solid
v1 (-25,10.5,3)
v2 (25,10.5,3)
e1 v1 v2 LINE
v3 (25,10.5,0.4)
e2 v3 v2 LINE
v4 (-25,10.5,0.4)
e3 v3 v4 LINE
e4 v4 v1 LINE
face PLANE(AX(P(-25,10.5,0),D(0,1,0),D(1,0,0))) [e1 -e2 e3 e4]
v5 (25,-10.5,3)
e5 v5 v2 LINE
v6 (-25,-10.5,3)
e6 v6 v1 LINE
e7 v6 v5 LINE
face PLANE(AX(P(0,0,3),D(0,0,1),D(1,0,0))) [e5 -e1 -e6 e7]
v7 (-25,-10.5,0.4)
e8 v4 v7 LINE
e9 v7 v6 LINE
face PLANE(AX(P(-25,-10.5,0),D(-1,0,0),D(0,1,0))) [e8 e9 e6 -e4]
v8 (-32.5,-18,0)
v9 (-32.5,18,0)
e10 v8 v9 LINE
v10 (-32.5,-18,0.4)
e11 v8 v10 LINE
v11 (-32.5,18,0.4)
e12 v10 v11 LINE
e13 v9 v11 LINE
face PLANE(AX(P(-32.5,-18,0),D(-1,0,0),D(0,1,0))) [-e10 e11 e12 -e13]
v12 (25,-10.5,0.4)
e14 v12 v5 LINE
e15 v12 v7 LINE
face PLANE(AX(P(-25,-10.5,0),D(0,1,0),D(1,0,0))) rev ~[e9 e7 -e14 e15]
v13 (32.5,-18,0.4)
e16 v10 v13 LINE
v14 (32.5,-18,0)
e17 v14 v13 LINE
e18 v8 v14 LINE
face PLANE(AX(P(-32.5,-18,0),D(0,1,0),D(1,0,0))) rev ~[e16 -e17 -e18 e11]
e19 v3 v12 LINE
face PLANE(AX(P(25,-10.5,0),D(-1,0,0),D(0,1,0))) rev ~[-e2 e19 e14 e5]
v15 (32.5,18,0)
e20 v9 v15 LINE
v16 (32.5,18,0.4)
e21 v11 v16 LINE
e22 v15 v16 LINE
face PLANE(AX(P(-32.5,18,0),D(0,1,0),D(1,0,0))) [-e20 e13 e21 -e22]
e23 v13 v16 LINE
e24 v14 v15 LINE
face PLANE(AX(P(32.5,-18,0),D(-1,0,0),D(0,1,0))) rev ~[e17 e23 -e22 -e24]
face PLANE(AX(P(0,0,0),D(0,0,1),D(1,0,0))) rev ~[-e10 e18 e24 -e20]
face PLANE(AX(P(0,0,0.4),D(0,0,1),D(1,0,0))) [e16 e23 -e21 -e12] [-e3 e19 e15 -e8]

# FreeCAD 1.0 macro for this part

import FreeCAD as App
import Part
import Sketcher

doc = App.newDocument("Part")
params = doc.addObject("Spreadsheet::Sheet", "Params")
for row, (alias, value) in enumerate([
    ("sketch1_width", "65 mm"),
    ("sketch1_height", "36 mm"),
    ("pad1_length", "0.4 mm"),
    ("sketch2_width", "50 mm"),
    ("sketch2_height", "21 mm"),
    ("pad2_length", "3 mm"),
], start=1):
    params.set(f"A{row}", alias)
    params.set(f"B{row}", "=" + value)
    params.setAlias(f"B{row}", alias)

body = doc.addObject("PartDesign::Body", "Body")

# Sketch on XY plane
sketch1 = body.newObject("Sketcher::SketchObject", "Sketch")
sketch1.AttachmentSupport = (doc.getObject("XY_Plane"), [""])
sketch1.MapMode = "FlatFace"
sketch1.addGeometry(Part.LineSegment(App.Vector(-32, 18, 0), App.Vector(-32, -18, 0)), False)
sketch1.addGeometry(Part.LineSegment(App.Vector(-32, -18, 0), App.Vector(32, -18, 0)), False)
sketch1.addGeometry(Part.LineSegment(App.Vector(32, -18, 0), App.Vector(32, 18, 0)), False)
sketch1.addGeometry(Part.LineSegment(App.Vector(32, 18, 0), App.Vector(-32, 18, 0)), False)
sketch1.addConstraint(Sketcher.Constraint("Coincident", 0, 2, 1, 1))
sketch1.addConstraint(Sketcher.Constraint("Coincident", 1, 2, 2, 1))
sketch1.addConstraint(Sketcher.Constraint("Coincident", 2, 2, 3, 1))
sketch1.addConstraint(Sketcher.Constraint("Coincident", 3, 2, 0, 1))
sketch1.addConstraint(Sketcher.Constraint("Vertical", 0))
sketch1.addConstraint(Sketcher.Constraint("Horizontal", 1))
sketch1.addConstraint(Sketcher.Constraint("Vertical", 2))
sketch1.addConstraint(Sketcher.Constraint("Horizontal", 3))
sketch1.addConstraint(Sketcher.Constraint("Symmetric", 0, 2, 2, 2, -1, 1))
sketch1.addConstraint(Sketcher.Constraint("DistanceX", 1, 1, 1, 2, 65.0))
sketch1.addConstraint(Sketcher.Constraint("DistanceY", 0, 2, 0, 1, 36.0))
sketch1.setExpression("Constraints[9]", "Params.sketch1_width")
sketch1.setExpression("Constraints[10]", "Params.sketch1_height")
pad1 = body.newObject("PartDesign::Pad", "Pad")
pad1.Profile = sketch1
pad1.setExpression("Length", "Params.pad1_length")

# Sketch on XY plane
sketch2 = body.newObject("Sketcher::SketchObject", "Sketch001")
sketch2.AttachmentSupport = (doc.getObject("XY_Plane"), [""])
sketch2.MapMode = "FlatFace"
sketch2.addGeometry(Part.LineSegment(App.Vector(-25, 10, 0), App.Vector(-25, -10, 0)), False)
sketch2.addGeometry(Part.LineSegment(App.Vector(-25, -10, 0), App.Vector(25, -10, 0)), False)
sketch2.addGeometry(Part.LineSegment(App.Vector(25, -10, 0), App.Vector(25, 10, 0)), False)
sketch2.addGeometry(Part.LineSegment(App.Vector(25, 10, 0), App.Vector(-25, 10, 0)), False)
sketch2.addConstraint(Sketcher.Constraint("Coincident", 0, 2, 1, 1))
sketch2.addConstraint(Sketcher.Constraint("Coincident", 1, 2, 2, 1))
sketch2.addConstraint(Sketcher.Constraint("Coincident", 2, 2, 3, 1))
sketch2.addConstraint(Sketcher.Constraint("Coincident", 3, 2, 0, 1))
sketch2.addConstraint(Sketcher.Constraint("Vertical", 0))
sketch2.addConstraint(Sketcher.Constraint("Horizontal", 1))
sketch2.addConstraint(Sketcher.Constraint("Vertical", 2))
sketch2.addConstraint(Sketcher.Constraint("Horizontal", 3))
sketch2.addConstraint(Sketcher.Constraint("Symmetric", 0, 2, 2, 2, -1, 1))
sketch2.addConstraint(Sketcher.Constraint("DistanceX", 1, 1, 1, 2, 50.0))
sketch2.addConstraint(Sketcher.Constraint("DistanceY", 0, 2, 0, 1, 21.0))
sketch2.setExpression("Constraints[9]", "Params.sketch2_width")
sketch2.setExpression("Constraints[10]", "Params.sketch2_height")
pad2 = body.newObject("PartDesign::Pad", "Pad001")
pad2.Profile = sketch2
pad2.setExpression("Length", "Params.pad2_length")

doc.recompute()
